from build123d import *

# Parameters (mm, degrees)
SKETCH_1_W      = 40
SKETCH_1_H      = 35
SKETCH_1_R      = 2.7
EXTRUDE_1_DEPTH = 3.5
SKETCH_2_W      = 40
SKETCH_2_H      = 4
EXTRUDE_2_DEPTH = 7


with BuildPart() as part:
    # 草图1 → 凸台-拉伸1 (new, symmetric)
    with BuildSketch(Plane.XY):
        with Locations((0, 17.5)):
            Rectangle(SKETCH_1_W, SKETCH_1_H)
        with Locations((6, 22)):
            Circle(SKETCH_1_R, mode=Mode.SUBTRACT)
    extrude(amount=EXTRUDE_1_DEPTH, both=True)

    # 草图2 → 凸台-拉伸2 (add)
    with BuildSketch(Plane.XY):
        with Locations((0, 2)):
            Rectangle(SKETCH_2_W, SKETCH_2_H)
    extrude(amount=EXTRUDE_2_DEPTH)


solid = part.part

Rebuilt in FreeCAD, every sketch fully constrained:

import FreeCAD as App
import Part
import Sketcher

V = App.Vector
Q = App.Units.Quantity


def add_polygon(sketch, points):
    """Adds a closed chain of lines whose ends are joined by coincident constraints."""
    first, n = sketch.GeometryCount, len(points)
    for a, b in zip(points, points[1:] + points[:1]):
        sketch.addGeometry(Part.LineSegment(App.Vector(*a, 0), App.Vector(*b, 0)), False)
    for i in range(n):
        sketch.addConstraint(Sketcher.Constraint("Coincident", first + i, 2, first + (i + 1) % n, 1))

doc = App.newDocument("Part")
body = doc.addObject("PartDesign::Body", "Body")

sketch1 = body.newObject("Sketcher::SketchObject", "Sketch")
sketch1.AttachmentSupport = (doc.getObject("XY_Plane"), [""])
sketch1.MapMode = "FlatFace"
add_polygon(sketch1, [(-20, 35), (-20, 0), (20, 0), (20, 35)])
sketch1.addGeometry(Part.Circle(V(6, 22, 0), V(0, 0, 1), 2.7), False)
sketch1.addConstraint([
    Sketcher.Constraint("Vertical", 0),
    Sketcher.Constraint("Horizontal", 1),
    Sketcher.Constraint("Vertical", 2),
    Sketcher.Constraint("Horizontal", 3),
    Sketcher.Constraint("Symmetric", 0, 2, 1, 2, -1, 1),
    Sketcher.Constraint("Diameter", 4, Q("5.4 mm")),
    Sketcher.Constraint("DistanceX", 1, 1, 1, 2, Q("40 mm")),
    Sketcher.Constraint("DistanceY", 0, 2, 0, 1, Q("35 mm")),
    Sketcher.Constraint("DistanceX", -1, 1, 4, 3, Q("6 mm")),
    Sketcher.Constraint("DistanceY", -1, 1, 4, 3, Q("22 mm")),
])
pad1 = body.newObject("PartDesign::Pad", "Pad")
pad1.Profile = sketch1
pad1.Length = 7
pad1.Midplane = True

sketch2 = body.newObject("Sketcher::SketchObject", "Sketch001")
sketch2.AttachmentSupport = (doc.getObject("XY_Plane"), [""])
sketch2.MapMode = "FlatFace"
add_polygon(sketch2, [(-20, 4), (-20, 0), (20, 0), (20, 4)])
sketch2.addConstraint([
    Sketcher.Constraint("Vertical", 0),
    Sketcher.Constraint("Horizontal", 1),
    Sketcher.Constraint("Vertical", 2),
    Sketcher.Constraint("Horizontal", 3),
    Sketcher.Constraint("Symmetric", 0, 2, 1, 2, -1, 1),
    Sketcher.Constraint("DistanceX", 1, 1, 1, 2, Q("40 mm")),
    Sketcher.Constraint("DistanceY", 0, 2, 0, 1, Q("4 mm")),
])
pad2 = body.newObject("PartDesign::Pad", "Pad001")
pad2.Profile = sketch2
pad2.Length = 7

doc.recompute()
